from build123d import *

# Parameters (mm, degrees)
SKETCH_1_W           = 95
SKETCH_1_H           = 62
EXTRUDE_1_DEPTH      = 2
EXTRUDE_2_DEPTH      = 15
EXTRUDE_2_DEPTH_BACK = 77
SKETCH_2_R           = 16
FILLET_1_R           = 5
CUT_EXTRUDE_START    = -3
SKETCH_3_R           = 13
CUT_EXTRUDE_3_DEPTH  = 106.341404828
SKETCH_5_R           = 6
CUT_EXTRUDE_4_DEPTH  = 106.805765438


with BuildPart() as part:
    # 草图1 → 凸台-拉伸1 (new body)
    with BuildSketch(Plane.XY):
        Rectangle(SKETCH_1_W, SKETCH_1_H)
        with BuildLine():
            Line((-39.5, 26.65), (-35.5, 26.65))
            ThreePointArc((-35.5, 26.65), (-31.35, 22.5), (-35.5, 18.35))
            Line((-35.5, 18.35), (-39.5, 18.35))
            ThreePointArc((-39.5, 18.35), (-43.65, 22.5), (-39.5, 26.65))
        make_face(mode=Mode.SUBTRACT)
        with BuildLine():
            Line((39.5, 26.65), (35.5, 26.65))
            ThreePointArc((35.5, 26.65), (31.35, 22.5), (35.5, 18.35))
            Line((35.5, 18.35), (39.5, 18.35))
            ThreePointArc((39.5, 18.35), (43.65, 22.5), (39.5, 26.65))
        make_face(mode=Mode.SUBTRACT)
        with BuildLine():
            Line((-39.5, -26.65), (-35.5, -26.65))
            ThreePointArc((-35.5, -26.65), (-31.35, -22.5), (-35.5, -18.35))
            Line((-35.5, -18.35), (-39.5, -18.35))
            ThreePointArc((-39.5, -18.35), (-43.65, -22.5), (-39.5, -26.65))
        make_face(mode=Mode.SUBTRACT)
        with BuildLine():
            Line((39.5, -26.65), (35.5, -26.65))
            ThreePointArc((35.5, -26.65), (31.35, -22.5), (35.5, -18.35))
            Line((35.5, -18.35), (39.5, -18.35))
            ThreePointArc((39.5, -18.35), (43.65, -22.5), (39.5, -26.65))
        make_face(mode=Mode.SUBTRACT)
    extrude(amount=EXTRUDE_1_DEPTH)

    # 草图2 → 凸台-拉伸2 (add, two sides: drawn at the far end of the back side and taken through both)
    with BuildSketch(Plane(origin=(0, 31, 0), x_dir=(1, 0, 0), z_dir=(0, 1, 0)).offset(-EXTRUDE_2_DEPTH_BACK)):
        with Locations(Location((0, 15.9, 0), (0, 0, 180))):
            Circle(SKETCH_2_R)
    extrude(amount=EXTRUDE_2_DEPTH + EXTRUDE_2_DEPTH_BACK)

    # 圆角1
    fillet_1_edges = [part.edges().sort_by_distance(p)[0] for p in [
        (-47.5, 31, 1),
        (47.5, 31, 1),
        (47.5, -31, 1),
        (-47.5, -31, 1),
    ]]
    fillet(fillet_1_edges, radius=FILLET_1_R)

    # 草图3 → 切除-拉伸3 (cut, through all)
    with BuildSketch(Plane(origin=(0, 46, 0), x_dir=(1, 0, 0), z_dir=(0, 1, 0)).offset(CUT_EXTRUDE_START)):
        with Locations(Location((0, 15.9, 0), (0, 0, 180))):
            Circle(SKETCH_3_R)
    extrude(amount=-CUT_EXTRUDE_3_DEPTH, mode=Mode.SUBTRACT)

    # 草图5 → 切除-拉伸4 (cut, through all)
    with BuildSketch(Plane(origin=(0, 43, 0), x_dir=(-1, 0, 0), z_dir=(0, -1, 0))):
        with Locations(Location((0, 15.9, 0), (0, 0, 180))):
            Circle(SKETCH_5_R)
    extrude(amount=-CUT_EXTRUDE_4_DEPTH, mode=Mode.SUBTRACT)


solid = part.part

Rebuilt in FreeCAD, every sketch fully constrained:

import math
import FreeCAD as App
import Part
import Sketcher
from FreeCAD import Vector


def edges_at(feature, points):
    """Names of the edges that pass closest to the given points."""
    edges = feature.Shape.Edges
    near = lambda p: min(range(len(edges)), key=lambda i: edges[i].distToShape(Part.Vertex(*p))[0])
    return sorted({f"Edge{near(p) + 1}" for p in points})


def add_polygon(sketch, points):
    """Adds a closed chain of lines whose ends are joined by coincident constraints."""
    first, n = sketch.GeometryCount, len(points)
    for a, b in zip(points, points[1:] + points[:1]):
        sketch.addGeometry(Part.LineSegment(App.Vector(*a, 0), App.Vector(*b, 0)), False)
    for i in range(n):
        sketch.addConstraint(Sketcher.Constraint("Coincident", first + i, 2, first + (i + 1) % n, 1))

doc = App.newDocument("Part")
body = doc.addObject("PartDesign::Body", "Body")

# Sketch on XY plane
sketch1 = body.newObject("Sketcher::SketchObject", "Sketch")
sketch1.AttachmentSupport = (doc.getObject("XY_Plane"), [""])
sketch1.MapMode = "FlatFace"
add_polygon(sketch1, [(-47.5, 31), (-47.5, -31), (47.5, -31), (47.5, 31)])  # lines 0-3
sketch1.addGeometry(Part.LineSegment(Vector(-35.5, -26.6, 0), Vector(-39.5, -26.6, 0)), False)  # 4
sketch1.addGeometry(Part.ArcOfCircle(Part.Circle(Vector(-39.5, -22.5, 0), Vector(0, 0, 1), 4.2), math.radians(90), math.radians(270)), False)  # 5
sketch1.addGeometry(Part.LineSegment(Vector(-39.5, -18.4, 0), Vector(-35.5, -18.4, 0)), False)  # 6
sketch1.addGeometry(Part.ArcOfCircle(Part.Circle(Vector(-35.5, -22.5, 0), Vector(0, 0, 1), 4.2), math.radians(-90), math.radians(90)), False)  # 7
sketch1.addGeometry(Part.ArcOfCircle(Part.Circle(Vector(39.5, -22.5, 0), Vector(0, 0, 1), 4.2), math.radians(-90), math.radians(90)), False)  # 8
sketch1.addGeometry(Part.LineSegment(Vector(39.5, -26.6, 0), Vector(35.5, -26.6, 0)), False)  # 9
sketch1.addGeometry(Part.ArcOfCircle(Part.Circle(Vector(35.5, -22.5, 0), Vector(0, 0, 1), 4.2), math.radians(90), math.radians(270)), False)  # 10
sketch1.addGeometry(Part.LineSegment(Vector(35.5, -18.4, 0), Vector(39.5, -18.4, 0)), False)  # 11
sketch1.addGeometry(Part.ArcOfCircle(Part.Circle(Vector(-39.5, 22.5, 0), Vector(0, 0, 1), 4.2), math.radians(90), math.radians(270)), False)  # 12
sketch1.addGeometry(Part.LineSegment(Vector(-39.5, 26.6, 0), Vector(-35.5, 26.6, 0)), False)  # 13
sketch1.addGeometry(Part.ArcOfCircle(Part.Circle(Vector(-35.5, 22.5, 0), Vector(0, 0, 1), 4.2), math.radians(-90), math.radians(90)), False)  # 14
sketch1.addGeometry(Part.LineSegment(Vector(-35.5, 18.4, 0), Vector(-39.5, 18.4, 0)), False)  # 15
sketch1.addGeometry(Part.LineSegment(Vector(35.5, 26.6, 0), Vector(39.5, 26.6, 0)), False)  # 16
sketch1.addGeometry(Part.ArcOfCircle(Part.Circle(Vector(39.5, 22.5, 0), Vector(0, 0, 1), 4.2), math.radians(-90), math.radians(90)), False)  # 17
sketch1.addGeometry(Part.LineSegment(Vector(39.5, 18.4, 0), Vector(35.5, 18.4, 0)), False)  # 18
sketch1.addGeometry(Part.ArcOfCircle(Part.Circle(Vector(35.5, 22.5, 0), Vector(0, 0, 1), 4.2), math.radians(90), math.radians(270)), False)  # 19
sketch1.addConstraint([
    Sketcher.Constraint("Tangent", 4, 2, 5, 2),
    Sketcher.Constraint("Tangent", 5, 1, 6, 1),
    Sketcher.Constraint("Tangent", 6, 2, 7, 2),
    Sketcher.Constraint("Tangent", 7, 1, 4, 1),
    Sketcher.Constraint("Tangent", 8, 1, 9, 1),
    Sketcher.Constraint("Tangent", 9, 2, 10, 2),
    Sketcher.Constraint("Tangent", 10, 1, 11, 1),
    Sketcher.Constraint("Tangent", 11, 2, 8, 2),
    Sketcher.Constraint("Tangent", 12, 1, 13, 1),
    Sketcher.Constraint("Tangent", 13, 2, 14, 2),
    Sketcher.Constraint("Tangent", 14, 1, 15, 1),
    Sketcher.Constraint("Tangent", 15, 2, 12, 2),
    Sketcher.Constraint("Tangent", 16, 2, 17, 2),
    Sketcher.Constraint("Tangent", 17, 1, 18, 1),
    Sketcher.Constraint("Tangent", 18, 2, 19, 2),
    Sketcher.Constraint("Tangent", 19, 1, 16, 1),
    Sketcher.Constraint("Vertical", 0),
    Sketcher.Constraint("Horizontal", 1),
    Sketcher.Constraint("Vertical", 2),
    Sketcher.Constraint("Horizontal", 3),
    Sketcher.Constraint("Horizontal", 4),
    Sketcher.Constraint("Horizontal", 6),
    Sketcher.Constraint("Horizontal", 9),
    Sketcher.Constraint("Horizontal", 11),
    Sketcher.Constraint("Horizontal", 13),
    Sketcher.Constraint("Horizontal", 15),
    Sketcher.Constraint("Horizontal", 16),
    Sketcher.Constraint("Horizontal", 18),
    Sketcher.Constraint("Equal", 7, 8),
    Sketcher.Constraint("Equal", 10, 12),
    Sketcher.Constraint("Equal", 14, 17),
    Sketcher.Constraint("Symmetric", 8, 3, 12, 3, -1, 1),
    Sketcher.Constraint("Symmetric", 5, 3, 17, 3, -1, 1),
    Sketcher.Constraint("Symmetric", 0, 2, 2, 2, -1, 1),
    Sketcher.Constraint("Symmetric", 5, 3, 8, 3, -2),
    Sketcher.Constraint("Vertical", 7, 3, 14, 3),
    Sketcher.Constraint("Vertical", 10, 3, 19, 3),
    Sketcher.Constraint("Equal", 6, 9),
    Sketcher.Constraint("DistanceX", 1, 1, 1, 2, 95.0),
    Sketcher.Constraint("DistanceX", 4, 2, 4, 1, 4.0),
    Sketcher.Constraint("DistanceY", 0, 2, 0, 1, 62.0),
    Sketcher.Constraint("Radius", 5, 4.15),
    Sketcher.Constraint("DistanceX", 7, 3, 8, 3, 75.0),
    Sketcher.Constraint("DistanceY", 5, 3, 12, 3, 45.0),
])
pad1 = body.newObject("PartDesign::Pad", "Pad")
pad1.Profile = sketch1
pad1.Length = 2

# Sketch on XZ plane
sketch2 = body.newObject("Sketcher::SketchObject", "Sketch001")
sketch2.AttachmentSupport = (doc.getObject("XZ_Plane"), [""])
sketch2.MapMode = "FlatFace"
sketch2.AttachmentOffset = App.Placement(Vector(0, 0, -31), App.Rotation())
sketch2.addGeometry(Part.Circle(Vector(0, -16, 0), Vector(0, 0, 1), 16), False)
sketch2.addConstraint([
    Sketcher.Constraint("PointOnObject", 0, 3, -2),
    Sketcher.Constraint("Diameter", 0, 32.0),
    Sketcher.Constraint("DistanceY", 0, 3, -1, 1, 15.9),
])
pad2 = body.newObject("PartDesign::Pad", "Pad001")
pad2.Profile = sketch2
pad2.Type = "TwoLengths"
pad2.Length = 15
pad2.Length2 = 77
pad2.Reversed = True
doc.recompute()

fillet = body.newObject("PartDesign::Fillet", "Fillet")
fillet.Base = (pad2, edges_at(pad2, [
    (-47.5, 31, 1),
    (47.5, 31, 1),
    (47.5, -31, 1),
    (-47.5, -31, 1),
]))
fillet.Radius = 5

# Sketch on XZ plane
sketch3 = body.newObject("Sketcher::SketchObject", "Sketch002")
sketch3.AttachmentSupport = (doc.getObject("XZ_Plane"), [""])
sketch3.MapMode = "FlatFace"
sketch3.AttachmentOffset = App.Placement(Vector(0, 0, -43), App.Rotation())
sketch3.addGeometry(Part.Circle(Vector(0, -16, 0), Vector(0, 0, 1), 13), False)
sketch3.addConstraint([
    Sketcher.Constraint("PointOnObject", 0, 3, -2),
    Sketcher.Constraint("Diameter", 0, 26.0),
    Sketcher.Constraint("DistanceY", 0, 3, -1, 1, 15.9),
])
pocket1 = body.newObject("PartDesign::Pocket", "Pocket")
pocket1.Profile = sketch3
pocket1.Type = "ThroughAll"
pocket1.Reversed = True

# Sketch on XZ plane
sketch4 = body.newObject("Sketcher::SketchObject", "Sketch003")
sketch4.AttachmentSupport = (doc.getObject("XZ_Plane"), [""])
sketch4.MapMode = "FlatFace"
sketch4.AttachmentOffset = App.Placement(Vector(0, 0, -43), App.Rotation())
sketch4.addGeometry(Part.Circle(Vector(0, -16, 0), Vector(0, 0, 1), 6), False)
sketch4.addConstraint([
    Sketcher.Constraint("PointOnObject", 0, 3, -2),
    Sketcher.Constraint("Diameter", 0, 12.0),
    Sketcher.Constraint("DistanceY", 0, 3, -1, 1, 15.9),
])
pocket2 = body.newObject("PartDesign::Pocket", "Pocket001")
pocket2.Profile = sketch4
pocket2.Type = "ThroughAll"

doc.recompute()
